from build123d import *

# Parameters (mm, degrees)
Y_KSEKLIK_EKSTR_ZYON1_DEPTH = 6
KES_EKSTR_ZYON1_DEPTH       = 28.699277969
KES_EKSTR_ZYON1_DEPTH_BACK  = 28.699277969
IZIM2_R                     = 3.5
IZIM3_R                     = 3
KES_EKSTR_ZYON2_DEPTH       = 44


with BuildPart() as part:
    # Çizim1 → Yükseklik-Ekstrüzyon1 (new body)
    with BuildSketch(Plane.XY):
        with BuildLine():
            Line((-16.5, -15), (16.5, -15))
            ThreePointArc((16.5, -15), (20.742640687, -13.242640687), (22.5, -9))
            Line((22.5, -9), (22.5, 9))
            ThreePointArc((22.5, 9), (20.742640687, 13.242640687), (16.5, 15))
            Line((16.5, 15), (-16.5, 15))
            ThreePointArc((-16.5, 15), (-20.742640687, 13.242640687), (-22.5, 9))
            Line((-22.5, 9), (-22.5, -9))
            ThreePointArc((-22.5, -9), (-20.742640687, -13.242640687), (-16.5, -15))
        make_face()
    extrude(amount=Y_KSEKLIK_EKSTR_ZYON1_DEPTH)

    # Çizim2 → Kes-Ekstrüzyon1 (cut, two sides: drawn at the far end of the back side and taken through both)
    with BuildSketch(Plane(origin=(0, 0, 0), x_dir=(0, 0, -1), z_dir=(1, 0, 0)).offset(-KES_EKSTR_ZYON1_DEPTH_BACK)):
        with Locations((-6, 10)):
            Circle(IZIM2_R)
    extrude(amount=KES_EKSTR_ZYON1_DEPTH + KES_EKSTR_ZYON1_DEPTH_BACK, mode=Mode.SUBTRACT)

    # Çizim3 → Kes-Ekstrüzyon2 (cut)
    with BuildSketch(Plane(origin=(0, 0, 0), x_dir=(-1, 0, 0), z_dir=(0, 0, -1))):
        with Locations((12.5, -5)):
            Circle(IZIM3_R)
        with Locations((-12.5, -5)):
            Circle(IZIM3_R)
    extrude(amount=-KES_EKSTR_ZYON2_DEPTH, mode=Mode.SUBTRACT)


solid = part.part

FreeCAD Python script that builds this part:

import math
import FreeCAD as App
import Part
import Sketcher

doc = App.newDocument("Part")
body = doc.addObject("PartDesign::Body", "Body")

# Sketch on XY plane
sketch1 = body.newObject("Sketcher::SketchObject", "Sketch")
sketch1.AttachmentSupport = (doc.getObject("XY_Plane"), [""])
sketch1.MapMode = "FlatFace"
sketch1.addGeometry(Part.LineSegment(App.Vector(-16, -15, 0), App.Vector(16, -15, 0)), False)
sketch1.addGeometry(Part.ArcOfCircle(Part.Circle(App.Vector(16, -9, 0), App.Vector(0, 0, 1), 6), math.radians(-90), math.radians(0)), False)
sketch1.addGeometry(Part.LineSegment(App.Vector(22, -9, 0), App.Vector(22, 9, 0)), False)
sketch1.addGeometry(Part.ArcOfCircle(Part.Circle(App.Vector(16, 9, 0), App.Vector(0, 0, 1), 6), math.radians(0), math.radians(90)), False)
sketch1.addGeometry(Part.LineSegment(App.Vector(16, 15, 0), App.Vector(-16, 15, 0)), False)
sketch1.addGeometry(Part.ArcOfCircle(Part.Circle(App.Vector(-16, 9, 0), App.Vector(0, 0, 1), 6), math.radians(90), math.radians(180)), False)
sketch1.addGeometry(Part.LineSegment(App.Vector(-22, 9, 0), App.Vector(-22, -9, 0)), False)
sketch1.addGeometry(Part.ArcOfCircle(Part.Circle(App.Vector(-16, -9, 0), App.Vector(0, 0, 1), 6), math.radians(180), math.radians(270)), False)
sketch1.addConstraint(Sketcher.Constraint("Tangent", 0, 2, 1, 1))
sketch1.addConstraint(Sketcher.Constraint("Tangent", 1, 2, 2, 1))
sketch1.addConstraint(Sketcher.Constraint("Tangent", 2, 2, 3, 1))
sketch1.addConstraint(Sketcher.Constraint("Tangent", 3, 2, 4, 1))
sketch1.addConstraint(Sketcher.Constraint("Tangent", 4, 2, 5, 1))
sketch1.addConstraint(Sketcher.Constraint("Tangent", 5, 2, 6, 1))
sketch1.addConstraint(Sketcher.Constraint("Tangent", 6, 2, 7, 1))
sketch1.addConstraint(Sketcher.Constraint("Tangent", 7, 2, 0, 1))
sketch1.addConstraint(Sketcher.Constraint("Horizontal", 0))
sketch1.addConstraint(Sketcher.Constraint("Vertical", 2))
sketch1.addConstraint(Sketcher.Constraint("Horizontal", 4))
sketch1.addConstraint(Sketcher.Constraint("Vertical", 6))
sketch1.addConstraint(Sketcher.Constraint("Equal", 1, 3))
sketch1.addConstraint(Sketcher.Constraint("Equal", 3, 5))
sketch1.addConstraint(Sketcher.Constraint("Equal", 5, 7))
sketch1.addConstraint(Sketcher.Constraint("Symmetric", 1, 3, 5, 3, -1, 1))
sketch1.addConstraint(Sketcher.Constraint("Radius", 1, 6.0))
sketch1.addConstraint(Sketcher.Constraint("DistanceX", 0, 1, 0, 2, 33.0))
sketch1.addConstraint(Sketcher.Constraint("DistanceY", 2, 1, 2, 2, 18.0))
pad1 = body.newObject("PartDesign::Pad", "Pad")
pad1.Profile = sketch1
pad1.Length = 6

# Sketch on YZ plane
sketch2 = body.newObject("Sketcher::SketchObject", "Sketch001")
sketch2.AttachmentSupport = (doc.getObject("YZ_Plane"), [""])
sketch2.MapMode = "FlatFace"
sketch2.addGeometry(Part.Circle(App.Vector(10, 6, 0), App.Vector(0, 0, 1), 3.5), False)
sketch2.addConstraint(Sketcher.Constraint("Diameter", 0, 7.0))
sketch2.addConstraint(Sketcher.Constraint("DistanceX", -1, 1, 0, 3, 10.0))
sketch2.addConstraint(Sketcher.Constraint("DistanceY", -1, 1, 0, 3, 6.0))
pocket1 = body.newObject("PartDesign::Pocket", "Pocket")
pocket1.Profile = sketch2
pocket1.Type = "ThroughAll"
pocket1.Midplane = True

# Sketch on XY plane
sketch3 = body.newObject("Sketcher::SketchObject", "Sketch002")
sketch3.AttachmentSupport = (doc.getObject("XY_Plane"), [""])
sketch3.MapMode = "FlatFace"
sketch3.addGeometry(Part.Circle(App.Vector(-12.5, -5, 0), App.Vector(0, 0, 1), 3), False)
sketch3.addGeometry(Part.Circle(App.Vector(12.5, -5, 0), App.Vector(0, 0, 1), 3), False)
sketch3.addConstraint(Sketcher.Constraint("Equal", 0, 1))
sketch3.addConstraint(Sketcher.Constraint("Symmetric", 0, 3, 1, 3, -2))
sketch3.addConstraint(Sketcher.Constraint("Diameter", 0, 6.0))
sketch3.addConstraint(Sketcher.Constraint("DistanceY", 0, 3, -1, 1, 5.0))
sketch3.addConstraint(Sketcher.Constraint("DistanceX", 0, 3, 1, 3, 25.0))
pocket2 = body.newObject("PartDesign::Pocket", "Pocket001")
pocket2.Profile = sketch3
pocket2.Length = 44
pocket2.Reversed = True

doc.recompute()
